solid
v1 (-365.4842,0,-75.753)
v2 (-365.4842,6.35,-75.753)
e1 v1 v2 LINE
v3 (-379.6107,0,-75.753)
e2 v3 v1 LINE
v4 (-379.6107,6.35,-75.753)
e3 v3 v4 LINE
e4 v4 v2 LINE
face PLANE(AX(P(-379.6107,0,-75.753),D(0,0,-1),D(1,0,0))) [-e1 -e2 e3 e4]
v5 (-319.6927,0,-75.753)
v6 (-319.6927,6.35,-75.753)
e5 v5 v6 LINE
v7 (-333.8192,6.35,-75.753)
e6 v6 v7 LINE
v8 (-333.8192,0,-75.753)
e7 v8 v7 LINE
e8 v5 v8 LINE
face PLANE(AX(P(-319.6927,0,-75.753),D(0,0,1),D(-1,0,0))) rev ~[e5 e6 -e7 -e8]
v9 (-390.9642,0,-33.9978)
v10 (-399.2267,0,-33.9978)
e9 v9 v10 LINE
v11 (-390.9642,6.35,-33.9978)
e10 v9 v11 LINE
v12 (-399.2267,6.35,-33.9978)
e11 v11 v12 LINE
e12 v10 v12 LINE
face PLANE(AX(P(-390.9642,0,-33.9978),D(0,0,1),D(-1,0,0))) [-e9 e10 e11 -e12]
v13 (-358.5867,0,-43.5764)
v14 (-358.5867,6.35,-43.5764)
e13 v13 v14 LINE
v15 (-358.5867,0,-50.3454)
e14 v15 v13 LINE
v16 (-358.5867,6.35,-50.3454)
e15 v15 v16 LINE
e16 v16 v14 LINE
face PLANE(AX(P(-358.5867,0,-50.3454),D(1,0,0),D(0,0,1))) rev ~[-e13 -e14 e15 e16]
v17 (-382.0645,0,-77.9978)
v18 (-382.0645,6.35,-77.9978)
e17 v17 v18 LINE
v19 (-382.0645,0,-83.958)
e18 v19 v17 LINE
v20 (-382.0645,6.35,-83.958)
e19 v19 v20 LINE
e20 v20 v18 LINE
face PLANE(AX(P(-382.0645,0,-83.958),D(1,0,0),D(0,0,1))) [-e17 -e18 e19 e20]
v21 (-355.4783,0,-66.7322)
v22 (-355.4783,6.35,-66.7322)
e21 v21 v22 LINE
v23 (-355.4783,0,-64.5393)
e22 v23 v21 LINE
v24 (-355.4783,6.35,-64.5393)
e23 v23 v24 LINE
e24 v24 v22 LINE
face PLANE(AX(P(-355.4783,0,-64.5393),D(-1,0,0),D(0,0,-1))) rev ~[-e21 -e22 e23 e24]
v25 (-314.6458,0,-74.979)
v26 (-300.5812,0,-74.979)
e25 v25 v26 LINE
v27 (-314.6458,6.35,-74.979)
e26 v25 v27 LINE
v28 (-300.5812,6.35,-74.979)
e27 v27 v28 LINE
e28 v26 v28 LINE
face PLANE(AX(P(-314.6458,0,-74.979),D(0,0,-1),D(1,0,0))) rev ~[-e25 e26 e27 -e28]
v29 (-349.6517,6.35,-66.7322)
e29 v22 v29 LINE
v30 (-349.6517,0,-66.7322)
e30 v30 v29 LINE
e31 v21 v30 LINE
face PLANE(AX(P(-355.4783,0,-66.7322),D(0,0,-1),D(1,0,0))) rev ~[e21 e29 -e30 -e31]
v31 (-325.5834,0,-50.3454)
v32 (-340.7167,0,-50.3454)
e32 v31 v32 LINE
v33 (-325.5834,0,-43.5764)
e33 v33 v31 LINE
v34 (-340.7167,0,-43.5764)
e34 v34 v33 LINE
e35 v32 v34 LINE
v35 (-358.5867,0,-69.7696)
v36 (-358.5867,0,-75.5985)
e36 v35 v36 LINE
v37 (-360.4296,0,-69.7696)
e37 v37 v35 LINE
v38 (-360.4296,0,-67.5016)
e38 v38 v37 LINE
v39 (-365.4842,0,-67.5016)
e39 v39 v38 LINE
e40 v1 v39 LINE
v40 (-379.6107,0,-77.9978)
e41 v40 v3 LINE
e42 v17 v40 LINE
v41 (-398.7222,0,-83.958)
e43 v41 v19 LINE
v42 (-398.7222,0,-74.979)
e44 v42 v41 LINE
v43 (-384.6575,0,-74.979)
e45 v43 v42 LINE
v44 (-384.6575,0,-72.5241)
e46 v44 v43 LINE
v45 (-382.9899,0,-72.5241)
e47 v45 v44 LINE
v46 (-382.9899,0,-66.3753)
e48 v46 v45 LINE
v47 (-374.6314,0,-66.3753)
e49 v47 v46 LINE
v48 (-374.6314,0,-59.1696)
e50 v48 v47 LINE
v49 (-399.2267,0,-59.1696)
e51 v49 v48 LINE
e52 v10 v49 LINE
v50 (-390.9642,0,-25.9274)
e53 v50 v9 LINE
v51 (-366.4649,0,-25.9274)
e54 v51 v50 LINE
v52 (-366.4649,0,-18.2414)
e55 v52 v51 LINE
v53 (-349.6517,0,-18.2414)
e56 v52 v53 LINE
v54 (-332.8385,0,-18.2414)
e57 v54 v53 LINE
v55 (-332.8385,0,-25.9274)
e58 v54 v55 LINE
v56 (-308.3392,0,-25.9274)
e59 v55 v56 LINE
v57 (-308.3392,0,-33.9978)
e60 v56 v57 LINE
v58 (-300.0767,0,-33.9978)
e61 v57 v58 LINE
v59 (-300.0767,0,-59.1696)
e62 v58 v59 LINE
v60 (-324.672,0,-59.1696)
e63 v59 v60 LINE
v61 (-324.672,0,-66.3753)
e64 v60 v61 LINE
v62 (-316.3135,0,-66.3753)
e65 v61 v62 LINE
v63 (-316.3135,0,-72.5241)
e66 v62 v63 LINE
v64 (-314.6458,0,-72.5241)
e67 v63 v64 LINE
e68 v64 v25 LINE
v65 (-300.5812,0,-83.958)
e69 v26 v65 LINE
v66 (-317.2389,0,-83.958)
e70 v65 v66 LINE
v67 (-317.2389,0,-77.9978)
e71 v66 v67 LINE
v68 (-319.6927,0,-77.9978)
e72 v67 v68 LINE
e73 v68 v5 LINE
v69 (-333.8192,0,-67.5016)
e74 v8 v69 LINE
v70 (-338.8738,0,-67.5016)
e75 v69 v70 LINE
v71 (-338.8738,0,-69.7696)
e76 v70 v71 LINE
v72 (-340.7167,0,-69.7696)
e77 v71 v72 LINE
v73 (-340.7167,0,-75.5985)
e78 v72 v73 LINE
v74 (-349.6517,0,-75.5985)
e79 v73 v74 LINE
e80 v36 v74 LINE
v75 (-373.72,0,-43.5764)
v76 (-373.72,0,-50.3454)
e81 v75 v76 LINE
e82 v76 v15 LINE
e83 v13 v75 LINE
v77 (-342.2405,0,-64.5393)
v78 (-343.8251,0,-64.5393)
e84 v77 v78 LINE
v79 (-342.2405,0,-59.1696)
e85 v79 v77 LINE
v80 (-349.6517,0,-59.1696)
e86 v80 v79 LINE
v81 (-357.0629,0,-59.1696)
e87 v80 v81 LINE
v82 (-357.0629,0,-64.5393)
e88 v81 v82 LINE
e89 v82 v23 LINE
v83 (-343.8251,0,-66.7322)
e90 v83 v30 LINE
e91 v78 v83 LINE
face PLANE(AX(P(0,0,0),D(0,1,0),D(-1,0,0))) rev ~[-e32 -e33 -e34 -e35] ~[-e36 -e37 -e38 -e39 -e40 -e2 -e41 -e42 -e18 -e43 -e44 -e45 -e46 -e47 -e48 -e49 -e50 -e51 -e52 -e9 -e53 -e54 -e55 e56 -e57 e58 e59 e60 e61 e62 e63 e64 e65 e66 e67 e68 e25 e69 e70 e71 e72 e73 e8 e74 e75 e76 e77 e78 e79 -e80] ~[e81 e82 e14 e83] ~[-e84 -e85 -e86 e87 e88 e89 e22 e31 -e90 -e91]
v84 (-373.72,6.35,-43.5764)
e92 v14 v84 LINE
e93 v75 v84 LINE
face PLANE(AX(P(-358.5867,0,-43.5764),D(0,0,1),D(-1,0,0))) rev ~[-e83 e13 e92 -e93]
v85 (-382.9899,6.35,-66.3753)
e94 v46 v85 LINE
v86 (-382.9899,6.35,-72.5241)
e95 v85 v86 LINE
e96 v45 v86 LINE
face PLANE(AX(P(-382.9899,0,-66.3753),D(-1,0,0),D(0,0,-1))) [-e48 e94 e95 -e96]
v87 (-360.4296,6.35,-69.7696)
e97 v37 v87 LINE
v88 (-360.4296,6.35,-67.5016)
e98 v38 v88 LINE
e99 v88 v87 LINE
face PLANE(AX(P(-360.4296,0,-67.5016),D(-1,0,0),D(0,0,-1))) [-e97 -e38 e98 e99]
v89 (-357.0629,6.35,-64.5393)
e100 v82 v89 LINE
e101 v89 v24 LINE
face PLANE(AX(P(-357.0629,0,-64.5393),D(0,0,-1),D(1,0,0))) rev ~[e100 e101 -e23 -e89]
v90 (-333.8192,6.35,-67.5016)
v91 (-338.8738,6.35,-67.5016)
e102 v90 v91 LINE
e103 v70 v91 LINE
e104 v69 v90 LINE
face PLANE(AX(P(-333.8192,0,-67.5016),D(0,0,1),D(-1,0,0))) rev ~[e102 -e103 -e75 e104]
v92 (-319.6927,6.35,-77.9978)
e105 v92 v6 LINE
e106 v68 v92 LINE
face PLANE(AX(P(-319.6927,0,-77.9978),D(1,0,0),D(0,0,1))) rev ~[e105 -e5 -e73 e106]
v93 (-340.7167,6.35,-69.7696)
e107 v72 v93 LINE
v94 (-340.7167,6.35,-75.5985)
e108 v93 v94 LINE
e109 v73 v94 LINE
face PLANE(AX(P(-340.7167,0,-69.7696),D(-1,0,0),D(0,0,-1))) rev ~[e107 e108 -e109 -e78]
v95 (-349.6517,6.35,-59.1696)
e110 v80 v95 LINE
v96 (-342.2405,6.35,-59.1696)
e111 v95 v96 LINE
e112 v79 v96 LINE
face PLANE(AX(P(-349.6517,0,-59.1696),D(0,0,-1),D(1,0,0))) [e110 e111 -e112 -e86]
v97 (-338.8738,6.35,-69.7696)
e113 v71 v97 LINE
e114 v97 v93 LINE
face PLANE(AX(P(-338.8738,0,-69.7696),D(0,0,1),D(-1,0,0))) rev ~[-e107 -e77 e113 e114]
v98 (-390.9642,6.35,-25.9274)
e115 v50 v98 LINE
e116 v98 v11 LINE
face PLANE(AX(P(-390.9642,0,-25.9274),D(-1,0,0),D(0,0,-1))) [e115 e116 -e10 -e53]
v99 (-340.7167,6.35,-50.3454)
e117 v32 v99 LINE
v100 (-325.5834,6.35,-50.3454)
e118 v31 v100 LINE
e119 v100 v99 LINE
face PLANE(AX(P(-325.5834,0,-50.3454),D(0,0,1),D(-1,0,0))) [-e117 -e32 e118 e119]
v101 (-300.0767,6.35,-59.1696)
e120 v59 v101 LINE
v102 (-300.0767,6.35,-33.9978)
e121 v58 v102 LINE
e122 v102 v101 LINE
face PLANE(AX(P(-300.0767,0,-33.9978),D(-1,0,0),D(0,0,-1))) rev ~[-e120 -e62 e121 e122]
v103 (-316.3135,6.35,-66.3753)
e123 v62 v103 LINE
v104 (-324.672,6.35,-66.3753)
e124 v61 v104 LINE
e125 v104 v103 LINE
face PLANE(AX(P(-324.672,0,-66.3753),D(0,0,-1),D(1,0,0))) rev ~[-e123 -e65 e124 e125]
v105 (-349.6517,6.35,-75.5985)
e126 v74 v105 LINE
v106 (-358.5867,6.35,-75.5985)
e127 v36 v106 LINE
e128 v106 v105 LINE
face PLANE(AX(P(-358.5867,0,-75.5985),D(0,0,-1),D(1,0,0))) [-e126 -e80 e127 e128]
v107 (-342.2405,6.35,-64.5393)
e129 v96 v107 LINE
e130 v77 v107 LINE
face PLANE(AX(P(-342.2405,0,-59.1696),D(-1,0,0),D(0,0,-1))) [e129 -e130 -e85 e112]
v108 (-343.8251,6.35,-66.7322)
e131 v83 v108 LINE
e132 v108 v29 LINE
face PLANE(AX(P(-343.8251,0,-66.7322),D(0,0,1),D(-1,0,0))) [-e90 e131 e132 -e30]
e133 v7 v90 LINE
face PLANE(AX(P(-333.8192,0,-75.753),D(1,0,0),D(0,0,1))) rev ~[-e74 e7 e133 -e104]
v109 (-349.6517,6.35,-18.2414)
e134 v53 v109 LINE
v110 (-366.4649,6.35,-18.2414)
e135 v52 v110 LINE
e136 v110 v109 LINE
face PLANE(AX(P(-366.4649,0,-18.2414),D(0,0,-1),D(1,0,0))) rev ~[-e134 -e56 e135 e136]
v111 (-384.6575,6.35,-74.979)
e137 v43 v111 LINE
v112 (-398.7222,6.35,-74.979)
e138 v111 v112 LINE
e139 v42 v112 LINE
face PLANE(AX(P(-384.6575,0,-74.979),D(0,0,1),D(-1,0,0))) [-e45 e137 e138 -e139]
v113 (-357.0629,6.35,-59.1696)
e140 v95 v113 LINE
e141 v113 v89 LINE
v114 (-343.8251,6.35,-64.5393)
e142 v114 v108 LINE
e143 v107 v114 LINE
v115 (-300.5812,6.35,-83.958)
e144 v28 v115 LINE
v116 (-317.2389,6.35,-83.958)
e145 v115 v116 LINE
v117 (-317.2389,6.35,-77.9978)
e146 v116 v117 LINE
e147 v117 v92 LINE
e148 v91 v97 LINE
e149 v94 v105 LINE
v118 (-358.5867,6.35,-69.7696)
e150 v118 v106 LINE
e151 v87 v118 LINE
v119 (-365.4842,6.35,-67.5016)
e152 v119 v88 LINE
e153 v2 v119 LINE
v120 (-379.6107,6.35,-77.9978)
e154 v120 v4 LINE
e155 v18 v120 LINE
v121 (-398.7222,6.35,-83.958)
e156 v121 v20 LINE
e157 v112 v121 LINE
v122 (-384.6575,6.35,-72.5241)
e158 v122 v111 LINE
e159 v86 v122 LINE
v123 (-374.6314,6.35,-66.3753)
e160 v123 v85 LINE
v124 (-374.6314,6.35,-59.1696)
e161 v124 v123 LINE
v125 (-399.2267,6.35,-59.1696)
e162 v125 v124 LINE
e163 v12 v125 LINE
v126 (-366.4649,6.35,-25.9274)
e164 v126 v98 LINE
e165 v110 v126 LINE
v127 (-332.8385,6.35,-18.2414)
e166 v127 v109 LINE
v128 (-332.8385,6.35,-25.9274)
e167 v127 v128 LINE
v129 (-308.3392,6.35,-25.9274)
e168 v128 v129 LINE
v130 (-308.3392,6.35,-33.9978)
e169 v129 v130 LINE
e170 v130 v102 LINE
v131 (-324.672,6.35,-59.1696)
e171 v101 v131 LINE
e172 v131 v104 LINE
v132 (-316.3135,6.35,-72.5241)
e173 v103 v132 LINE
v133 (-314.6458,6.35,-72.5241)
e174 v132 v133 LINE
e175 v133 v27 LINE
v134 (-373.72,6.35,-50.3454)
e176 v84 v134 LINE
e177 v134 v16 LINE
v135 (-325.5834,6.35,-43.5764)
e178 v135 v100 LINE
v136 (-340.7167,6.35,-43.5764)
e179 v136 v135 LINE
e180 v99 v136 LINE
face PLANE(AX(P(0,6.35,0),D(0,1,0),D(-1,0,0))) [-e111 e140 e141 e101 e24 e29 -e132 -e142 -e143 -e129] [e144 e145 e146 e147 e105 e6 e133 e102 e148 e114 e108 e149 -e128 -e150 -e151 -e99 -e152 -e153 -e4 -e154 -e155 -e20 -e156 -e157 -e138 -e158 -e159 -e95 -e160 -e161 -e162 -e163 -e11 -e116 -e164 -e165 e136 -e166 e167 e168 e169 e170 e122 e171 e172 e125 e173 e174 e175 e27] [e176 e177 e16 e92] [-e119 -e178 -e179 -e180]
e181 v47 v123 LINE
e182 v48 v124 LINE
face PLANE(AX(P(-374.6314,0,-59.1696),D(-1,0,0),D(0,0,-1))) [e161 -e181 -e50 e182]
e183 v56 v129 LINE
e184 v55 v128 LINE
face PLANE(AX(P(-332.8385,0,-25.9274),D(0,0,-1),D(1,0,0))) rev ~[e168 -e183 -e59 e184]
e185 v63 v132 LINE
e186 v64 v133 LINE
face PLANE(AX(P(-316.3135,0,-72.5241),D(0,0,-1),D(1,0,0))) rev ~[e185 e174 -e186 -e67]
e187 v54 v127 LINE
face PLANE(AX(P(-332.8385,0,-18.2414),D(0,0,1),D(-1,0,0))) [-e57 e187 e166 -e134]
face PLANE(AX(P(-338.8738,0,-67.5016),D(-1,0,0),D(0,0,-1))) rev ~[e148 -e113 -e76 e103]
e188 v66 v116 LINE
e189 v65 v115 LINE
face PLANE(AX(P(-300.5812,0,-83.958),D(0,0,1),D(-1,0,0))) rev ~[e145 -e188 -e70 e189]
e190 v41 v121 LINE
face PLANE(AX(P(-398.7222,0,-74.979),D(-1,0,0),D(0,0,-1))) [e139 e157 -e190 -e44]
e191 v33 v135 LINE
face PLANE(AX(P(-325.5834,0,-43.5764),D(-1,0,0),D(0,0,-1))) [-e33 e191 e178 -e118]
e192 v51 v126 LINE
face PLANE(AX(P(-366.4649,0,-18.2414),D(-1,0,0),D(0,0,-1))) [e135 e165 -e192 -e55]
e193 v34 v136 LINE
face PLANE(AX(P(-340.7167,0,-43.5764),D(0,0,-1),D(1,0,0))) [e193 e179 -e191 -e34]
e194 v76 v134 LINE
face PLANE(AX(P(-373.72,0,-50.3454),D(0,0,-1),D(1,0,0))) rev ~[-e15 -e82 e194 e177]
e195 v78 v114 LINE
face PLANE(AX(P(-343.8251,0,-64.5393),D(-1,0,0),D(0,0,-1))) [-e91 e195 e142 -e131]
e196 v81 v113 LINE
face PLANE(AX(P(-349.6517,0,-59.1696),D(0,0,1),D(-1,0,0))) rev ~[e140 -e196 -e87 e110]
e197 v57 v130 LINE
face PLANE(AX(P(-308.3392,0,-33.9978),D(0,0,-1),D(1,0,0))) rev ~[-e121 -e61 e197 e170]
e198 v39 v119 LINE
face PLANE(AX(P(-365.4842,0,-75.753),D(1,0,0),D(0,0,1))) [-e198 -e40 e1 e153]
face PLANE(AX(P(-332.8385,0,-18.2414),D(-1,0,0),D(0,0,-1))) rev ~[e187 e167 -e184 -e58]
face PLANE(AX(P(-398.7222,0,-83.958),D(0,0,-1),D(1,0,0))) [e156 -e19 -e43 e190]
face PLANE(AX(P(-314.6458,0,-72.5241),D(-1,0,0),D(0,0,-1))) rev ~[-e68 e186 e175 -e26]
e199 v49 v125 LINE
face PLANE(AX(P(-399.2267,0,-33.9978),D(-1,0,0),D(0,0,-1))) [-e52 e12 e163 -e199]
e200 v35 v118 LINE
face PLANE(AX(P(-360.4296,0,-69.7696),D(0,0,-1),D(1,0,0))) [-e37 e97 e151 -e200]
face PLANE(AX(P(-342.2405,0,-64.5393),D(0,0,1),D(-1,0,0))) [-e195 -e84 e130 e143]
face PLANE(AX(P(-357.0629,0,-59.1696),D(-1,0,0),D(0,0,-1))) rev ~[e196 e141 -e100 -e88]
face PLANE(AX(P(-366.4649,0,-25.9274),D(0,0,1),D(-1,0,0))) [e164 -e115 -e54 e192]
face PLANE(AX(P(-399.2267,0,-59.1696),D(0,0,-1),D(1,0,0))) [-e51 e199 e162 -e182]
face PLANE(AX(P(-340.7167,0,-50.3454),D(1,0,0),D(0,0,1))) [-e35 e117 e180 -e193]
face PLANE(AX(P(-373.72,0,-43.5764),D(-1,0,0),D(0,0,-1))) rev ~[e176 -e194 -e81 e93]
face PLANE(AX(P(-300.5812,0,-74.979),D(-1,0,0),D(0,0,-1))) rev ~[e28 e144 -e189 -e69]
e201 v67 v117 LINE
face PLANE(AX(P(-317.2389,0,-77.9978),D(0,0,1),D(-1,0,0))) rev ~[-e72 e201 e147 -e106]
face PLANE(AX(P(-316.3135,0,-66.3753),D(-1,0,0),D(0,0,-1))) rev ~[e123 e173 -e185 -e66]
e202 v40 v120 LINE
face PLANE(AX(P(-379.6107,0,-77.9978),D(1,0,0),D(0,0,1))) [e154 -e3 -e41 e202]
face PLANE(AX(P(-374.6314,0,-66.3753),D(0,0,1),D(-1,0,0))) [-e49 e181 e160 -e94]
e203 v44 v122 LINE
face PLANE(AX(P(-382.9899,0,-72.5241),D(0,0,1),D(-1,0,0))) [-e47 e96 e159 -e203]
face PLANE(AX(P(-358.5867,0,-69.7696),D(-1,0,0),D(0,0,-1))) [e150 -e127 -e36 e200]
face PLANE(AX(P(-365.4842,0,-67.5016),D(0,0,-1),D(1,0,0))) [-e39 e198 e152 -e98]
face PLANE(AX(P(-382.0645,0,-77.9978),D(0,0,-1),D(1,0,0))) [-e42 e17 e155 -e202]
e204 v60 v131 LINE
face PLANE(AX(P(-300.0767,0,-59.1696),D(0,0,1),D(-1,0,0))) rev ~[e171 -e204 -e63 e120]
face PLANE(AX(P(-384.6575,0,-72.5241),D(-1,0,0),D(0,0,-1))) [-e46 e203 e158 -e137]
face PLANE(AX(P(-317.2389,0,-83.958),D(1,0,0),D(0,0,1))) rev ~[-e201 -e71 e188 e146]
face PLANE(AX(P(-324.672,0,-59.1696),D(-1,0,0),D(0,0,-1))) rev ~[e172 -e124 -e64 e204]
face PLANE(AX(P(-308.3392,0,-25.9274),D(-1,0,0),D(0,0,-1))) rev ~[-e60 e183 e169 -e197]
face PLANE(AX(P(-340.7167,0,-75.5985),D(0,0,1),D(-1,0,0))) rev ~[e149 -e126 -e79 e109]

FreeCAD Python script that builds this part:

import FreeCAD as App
import Part
import Sketcher

V = App.Vector
Q = App.Units.Quantity


def add_polygon(sketch, points):
    """Adds a closed chain of lines whose ends are joined by coincident constraints."""
    first, n = sketch.GeometryCount, len(points)
    for a, b in zip(points, points[1:] + points[:1]):
        sketch.addGeometry(Part.LineSegment(App.Vector(*a, 0), App.Vector(*b, 0)), False)
    for i in range(n):
        sketch.addConstraint(Sketcher.Constraint("Coincident", first + i, 2, first + (i + 1) % n, 1))

doc = App.newDocument("Part")
body = doc.addObject("PartDesign::Body", "Body")

# Sketch on XZ plane
sketch1 = body.newObject("Sketcher::SketchObject", "Sketch")
sketch1.AttachmentSupport = (doc.getObject("XZ_Plane"), [""])
sketch1.MapMode = "FlatFace"
add_polygon(sketch1, [(-366.5, -18.2), (-332.8, -18.2), (-332.8, -25.9), (-308.3, -25.9), (-308.3, -34), (-300.1, -34), (-300.1, -59.2), (-324.7, -59.2), (-324.7, -66.4), (-316.3, -66.4), (-316.3, -72.5), (-314.6, -72.5), (-314.6, -75), (-300.6, -75), (-300.6, -84), (-317.2, -84), (-317.2, -78), (-319.7, -78), (-319.7, -75.8), (-333.8, -75.8), (-333.8, -67.5), (-338.9, -67.5), (-338.9, -69.8), (-340.7, -69.8), (-340.7, -75.6), (-358.6, -75.6), (-358.6, -69.8), (-360.4, -69.8), (-360.4, -67.5), (-365.5, -67.5), (-365.5, -75.8), (-379.6, -75.8), (-379.6, -78), (-382.1, -78), (-382.1, -84), (-398.7, -84), (-398.7, -75), (-384.7, -75), (-384.7, -72.5), (-383, -72.5), (-383, -66.4), (-374.6, -66.4), (-374.6, -59.2), (-399.2, -59.2), (-399.2, -34), (-391, -34), (-391, -25.9), (-366.5, -25.9)])  # lines 0-47
add_polygon(sketch1, [(-342.2, -59.2), (-357.1, -59.2), (-357.1, -64.5), (-355.5, -64.5), (-355.5, -66.7), (-343.8, -66.7), (-343.8, -64.5), (-342.2, -64.5)])  # lines 48-55
add_polygon(sketch1, [(-325.6, -50.3), (-325.6, -43.6), (-340.7, -43.6), (-340.7, -50.3)])  # lines 56-59
add_polygon(sketch1, [(-358.6, -43.6), (-373.7, -43.6), (-373.7, -50.3), (-358.6, -50.3)])  # lines 60-63
sketch1.addConstraint([
    Sketcher.Constraint("Horizontal", 0),
    Sketcher.Constraint("Vertical", 1),
    Sketcher.Constraint("Horizontal", 2),
    Sketcher.Constraint("Vertical", 3),
    Sketcher.Constraint("Horizontal", 4),
    Sketcher.Constraint("Vertical", 5),
    Sketcher.Constraint("Horizontal", 6),
    Sketcher.Constraint("Vertical", 7),
    Sketcher.Constraint("Horizontal", 8),
    Sketcher.Constraint("Vertical", 9),
    Sketcher.Constraint("Horizontal", 10),
    Sketcher.Constraint("Vertical", 11),
    Sketcher.Constraint("Horizontal", 12),
    Sketcher.Constraint("Vertical", 13),
    Sketcher.Constraint("Horizontal", 14),
    Sketcher.Constraint("Vertical", 15),
    Sketcher.Constraint("Horizontal", 16),
    Sketcher.Constraint("Vertical", 17),
    Sketcher.Constraint("Horizontal", 18),
    Sketcher.Constraint("Vertical", 19),
    Sketcher.Constraint("Horizontal", 20),
    Sketcher.Constraint("Vertical", 21),
    Sketcher.Constraint("Horizontal", 22),
    Sketcher.Constraint("Vertical", 23),
    Sketcher.Constraint("Horizontal", 24),
    Sketcher.Constraint("Vertical", 25),
    Sketcher.Constraint("Horizontal", 26),
    Sketcher.Constraint("Vertical", 27),
    Sketcher.Constraint("Horizontal", 28),
    Sketcher.Constraint("Vertical", 29),
    Sketcher.Constraint("Horizontal", 30),
    Sketcher.Constraint("Vertical", 31),
    Sketcher.Constraint("Horizontal", 32),
    Sketcher.Constraint("Vertical", 33),
    Sketcher.Constraint("Horizontal", 34),
    Sketcher.Constraint("Vertical", 35),
    Sketcher.Constraint("Horizontal", 36),
    Sketcher.Constraint("Vertical", 37),
    Sketcher.Constraint("Horizontal", 38),
    Sketcher.Constraint("Vertical", 39),
    Sketcher.Constraint("Horizontal", 40),
    Sketcher.Constraint("Vertical", 41),
    Sketcher.Constraint("Horizontal", 42),
    Sketcher.Constraint("Vertical", 43),
    Sketcher.Constraint("Horizontal", 44),
    Sketcher.Constraint("Vertical", 45),
    Sketcher.Constraint("Horizontal", 46),
    Sketcher.Constraint("Vertical", 47),
    Sketcher.Constraint("Horizontal", 48),
    Sketcher.Constraint("Vertical", 49),
    Sketcher.Constraint("Horizontal", 50),
    Sketcher.Constraint("Vertical", 51),
    Sketcher.Constraint("Horizontal", 52),
    Sketcher.Constraint("Vertical", 53),
    Sketcher.Constraint("Horizontal", 54),
    Sketcher.Constraint("Vertical", 55),
    Sketcher.Constraint("Vertical", 56),
    Sketcher.Constraint("Horizontal", 57),
    Sketcher.Constraint("Vertical", 58),
    Sketcher.Constraint("Horizontal", 59),
    Sketcher.Constraint("Horizontal", 60),
    Sketcher.Constraint("Vertical", 61),
    Sketcher.Constraint("Horizontal", 62),
    Sketcher.Constraint("Vertical", 63),
    Sketcher.Constraint("Horizontal", 22, 2, 25, 2),
    Sketcher.Constraint("Horizontal", 20, 2, 27, 2),
    Sketcher.Constraint("Horizontal", 18, 2, 29, 2),
    Sketcher.Constraint("Horizontal", 16, 2, 31, 2),
    Sketcher.Constraint("Horizontal", 14, 2, 33, 2),
    Sketcher.Constraint("Horizontal", 12, 2, 35, 2),
    Sketcher.Constraint("Horizontal", 10, 2, 37, 2),
    Sketcher.Constraint("Horizontal", 8, 2, 39, 2),
    Sketcher.Constraint("Horizontal", 6, 2, 41, 2),
    Sketcher.Constraint("Horizontal", 4, 2, 43, 2),
    Sketcher.Constraint("Horizontal", 2, 2, 45, 2),
    Sketcher.Constraint("Horizontal", 42, 2, 48, 2),
    Sketcher.Constraint("Horizontal", 50, 2, 53, 2),
    Sketcher.Constraint("Horizontal", 57, 2, 60, 2),
    Sketcher.Constraint("Horizontal", 59, 2, 61, 2),
    Sketcher.Constraint("Vertical", 23, 2, 57, 2),
    Sketcher.Constraint("Vertical", 25, 2, 62, 2),
    Sketcher.Constraint("Equal", 22, 26),
    Sketcher.Constraint("Equal", 20, 28),
    Sketcher.Constraint("Equal", 18, 30),
    Sketcher.Constraint("Equal", 16, 32),
    Sketcher.Constraint("Equal", 14, 34),
    Sketcher.Constraint("Equal", 12, 36),
    Sketcher.Constraint("Equal", 10, 38),
    Sketcher.Constraint("Equal", 8, 40),
    Sketcher.Constraint("Equal", 6, 42),
    Sketcher.Constraint("Equal", 4, 44),
    Sketcher.Constraint("Equal", 2, 46),
    Sketcher.Constraint("Equal", 50, 54),
    Sketcher.Constraint("Equal", 59, 60),
    Sketcher.Constraint("DistanceX", 20, 2, 20, 1, Q("0.199 in")),
    Sketcher.Constraint("DistanceX", 4, 1, 4, 2, Q("0.3253 in")),
    Sketcher.Constraint("DistanceX", 16, 2, 16, 1, Q("0.0966 in")),
    Sketcher.Constraint("DistanceX", 57, 2, 57, 1, Q("0.5958 in")),
    Sketcher.Constraint("DistanceY", 1, 2, 1, 1, Q("0.3026 in")),
    Sketcher.Constraint("DistanceY", 7, 2, 7, 1, Q("0.2837 in")),
    Sketcher.Constraint("DistanceY", 13, 2, 13, 1, Q("0.3535 in")),
    Sketcher.Constraint("DistanceY", 21, 2, 21, 1, Q("0.0893 in")),
    Sketcher.Constraint("DistanceY", 49, 2, 49, 1, Q("0.2114 in")),
    Sketcher.Constraint("DistanceY", 56, 1, 56, 2, Q("0.2665 in")),
    Sketcher.Constraint("DistanceX", 36, 2, -1, 1, Q("15.144 in")),
    Sketcher.Constraint("DistanceX", 0, 1, 0, 2, Q("33.6264 mm")),
    Sketcher.Constraint("DistanceX", 2, 1, 2, 2, Q("24.4993 mm")),
    Sketcher.Constraint("DistanceX", 6, 2, 6, 1, Q("24.5953 mm")),
    Sketcher.Constraint("DistanceX", 8, 1, 8, 2, Q("8.3585 mm")),
    Sketcher.Constraint("DistanceX", 10, 1, 10, 2, Q("1.6677 mm")),
    Sketcher.Constraint("DistanceX", 12, 1, 12, 2, Q("14.0646 mm")),
    Sketcher.Constraint("DistanceX", 14, 2, 14, 1, Q("16.6577 mm")),
    Sketcher.Constraint("DistanceX", 18, 2, 18, 1, Q("14.1265 mm")),
    Sketcher.Constraint("DistanceX", 22, 2, 22, 1, Q("1.843 mm")),
    Sketcher.Constraint("DistanceX", 48, 2, 48, 1, Q("14.8224 mm")),
    Sketcher.Constraint("DistanceX", 50, 1, 50, 2, Q("1.5846 mm")),
    Sketcher.Constraint("DistanceY", 3, 2, 3, 1, Q("8.0704 mm")),
    Sketcher.Constraint("DistanceY", 5, 2, 5, 1, Q("25.1718 mm")),
    Sketcher.Constraint("DistanceY", 9, 2, 9, 1, Q("6.1488 mm")),
    Sketcher.Constraint("DistanceY", 11, 2, 11, 1, Q("2.455 mm")),
    Sketcher.Constraint("DistanceY", 15, 1, 15, 2, Q("5.9602 mm")),
    Sketcher.Constraint("DistanceY", 17, 1, 17, 2, Q("2.2448 mm")),
    Sketcher.Constraint("DistanceY", 19, 1, 19, 2, Q("8.2514 mm")),
    Sketcher.Constraint("DistanceY", 23, 2, 23, 1, Q("0.2294882 in")),
    Sketcher.Constraint("DistanceY", 51, 2, 51, 1, Q("2.193 mm")),
    Sketcher.Constraint("DistanceY", 3, 2, -1, 1, Q("1.3385 in")),
    Sketcher.Constraint("DistanceX", 48, 2, -1, 1, Q("14.0576 in")),
    Sketcher.Constraint("DistanceY", 56, 2, -1, 1, Q("1.7156 in")),
])
pad1 = body.newObject("PartDesign::Pad", "Pad")
pad1.Profile = sketch1
pad1.Length = Q("0.25 in")
pad1.Reversed = True

doc.recompute()
